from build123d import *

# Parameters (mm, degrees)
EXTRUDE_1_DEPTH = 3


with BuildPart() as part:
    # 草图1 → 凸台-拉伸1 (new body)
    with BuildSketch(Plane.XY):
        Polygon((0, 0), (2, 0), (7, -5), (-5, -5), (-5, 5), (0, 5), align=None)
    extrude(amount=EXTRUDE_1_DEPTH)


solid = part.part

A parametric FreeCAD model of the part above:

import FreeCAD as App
import Part
import Sketcher

V = App.Vector


def add_polygon(sketch, points):
    """Adds a closed chain of lines whose ends are joined by coincident constraints."""
    first, n = sketch.GeometryCount, len(points)
    for a, b in zip(points, points[1:] + points[:1]):
        sketch.addGeometry(Part.LineSegment(App.Vector(*a, 0), App.Vector(*b, 0)), False)
    for i in range(n):
        sketch.addConstraint(Sketcher.Constraint("Coincident", first + i, 2, first + (i + 1) % n, 1))

doc = App.newDocument("Part")
body = doc.addObject("PartDesign::Body", "Body")

# Sketch on XY plane
sketch1 = doc.addObject("Sketcher::SketchObject", "Sketch")
body.addObject(sketch1)
sketch1.AttachmentSupport = (doc.XY_Plane, [""])
sketch1.MapMode = "FlatFace"
add_polygon(sketch1, [(2, 0), (0, 0), (0, 5), (-5, 5), (-5, -5), (7, -5)])  # lines 0-5
sketch1.addConstraint([
    Sketcher.Constraint("Horizontal", 0),
    Sketcher.Constraint("Vertical", 1),
    Sketcher.Constraint("Horizontal", 2),
    Sketcher.Constraint("Vertical", 3),
    Sketcher.Constraint("Horizontal", 4),
    Sketcher.Constraint("Coincident", 0, 2, -1, 1),
    Sketcher.Constraint("Equal", 2, 1),
    Sketcher.Constraint("DistanceX", 0, 2, 0, 1, 2.0),
    Sketcher.Constraint("DistanceX", 2, 2, 2, 1, 5.0),
    Sketcher.Constraint("DistanceX", 4, 1, 4, 2, 12.0),
    Sketcher.Constraint("DistanceY", 3, 2, 3, 1, 10.0),
])
pad1 = doc.addObject("PartDesign::Pad", "Pad")
body.addObject(pad1)
pad1.Profile = sketch1
pad1.Length = 3

doc.recompute()
